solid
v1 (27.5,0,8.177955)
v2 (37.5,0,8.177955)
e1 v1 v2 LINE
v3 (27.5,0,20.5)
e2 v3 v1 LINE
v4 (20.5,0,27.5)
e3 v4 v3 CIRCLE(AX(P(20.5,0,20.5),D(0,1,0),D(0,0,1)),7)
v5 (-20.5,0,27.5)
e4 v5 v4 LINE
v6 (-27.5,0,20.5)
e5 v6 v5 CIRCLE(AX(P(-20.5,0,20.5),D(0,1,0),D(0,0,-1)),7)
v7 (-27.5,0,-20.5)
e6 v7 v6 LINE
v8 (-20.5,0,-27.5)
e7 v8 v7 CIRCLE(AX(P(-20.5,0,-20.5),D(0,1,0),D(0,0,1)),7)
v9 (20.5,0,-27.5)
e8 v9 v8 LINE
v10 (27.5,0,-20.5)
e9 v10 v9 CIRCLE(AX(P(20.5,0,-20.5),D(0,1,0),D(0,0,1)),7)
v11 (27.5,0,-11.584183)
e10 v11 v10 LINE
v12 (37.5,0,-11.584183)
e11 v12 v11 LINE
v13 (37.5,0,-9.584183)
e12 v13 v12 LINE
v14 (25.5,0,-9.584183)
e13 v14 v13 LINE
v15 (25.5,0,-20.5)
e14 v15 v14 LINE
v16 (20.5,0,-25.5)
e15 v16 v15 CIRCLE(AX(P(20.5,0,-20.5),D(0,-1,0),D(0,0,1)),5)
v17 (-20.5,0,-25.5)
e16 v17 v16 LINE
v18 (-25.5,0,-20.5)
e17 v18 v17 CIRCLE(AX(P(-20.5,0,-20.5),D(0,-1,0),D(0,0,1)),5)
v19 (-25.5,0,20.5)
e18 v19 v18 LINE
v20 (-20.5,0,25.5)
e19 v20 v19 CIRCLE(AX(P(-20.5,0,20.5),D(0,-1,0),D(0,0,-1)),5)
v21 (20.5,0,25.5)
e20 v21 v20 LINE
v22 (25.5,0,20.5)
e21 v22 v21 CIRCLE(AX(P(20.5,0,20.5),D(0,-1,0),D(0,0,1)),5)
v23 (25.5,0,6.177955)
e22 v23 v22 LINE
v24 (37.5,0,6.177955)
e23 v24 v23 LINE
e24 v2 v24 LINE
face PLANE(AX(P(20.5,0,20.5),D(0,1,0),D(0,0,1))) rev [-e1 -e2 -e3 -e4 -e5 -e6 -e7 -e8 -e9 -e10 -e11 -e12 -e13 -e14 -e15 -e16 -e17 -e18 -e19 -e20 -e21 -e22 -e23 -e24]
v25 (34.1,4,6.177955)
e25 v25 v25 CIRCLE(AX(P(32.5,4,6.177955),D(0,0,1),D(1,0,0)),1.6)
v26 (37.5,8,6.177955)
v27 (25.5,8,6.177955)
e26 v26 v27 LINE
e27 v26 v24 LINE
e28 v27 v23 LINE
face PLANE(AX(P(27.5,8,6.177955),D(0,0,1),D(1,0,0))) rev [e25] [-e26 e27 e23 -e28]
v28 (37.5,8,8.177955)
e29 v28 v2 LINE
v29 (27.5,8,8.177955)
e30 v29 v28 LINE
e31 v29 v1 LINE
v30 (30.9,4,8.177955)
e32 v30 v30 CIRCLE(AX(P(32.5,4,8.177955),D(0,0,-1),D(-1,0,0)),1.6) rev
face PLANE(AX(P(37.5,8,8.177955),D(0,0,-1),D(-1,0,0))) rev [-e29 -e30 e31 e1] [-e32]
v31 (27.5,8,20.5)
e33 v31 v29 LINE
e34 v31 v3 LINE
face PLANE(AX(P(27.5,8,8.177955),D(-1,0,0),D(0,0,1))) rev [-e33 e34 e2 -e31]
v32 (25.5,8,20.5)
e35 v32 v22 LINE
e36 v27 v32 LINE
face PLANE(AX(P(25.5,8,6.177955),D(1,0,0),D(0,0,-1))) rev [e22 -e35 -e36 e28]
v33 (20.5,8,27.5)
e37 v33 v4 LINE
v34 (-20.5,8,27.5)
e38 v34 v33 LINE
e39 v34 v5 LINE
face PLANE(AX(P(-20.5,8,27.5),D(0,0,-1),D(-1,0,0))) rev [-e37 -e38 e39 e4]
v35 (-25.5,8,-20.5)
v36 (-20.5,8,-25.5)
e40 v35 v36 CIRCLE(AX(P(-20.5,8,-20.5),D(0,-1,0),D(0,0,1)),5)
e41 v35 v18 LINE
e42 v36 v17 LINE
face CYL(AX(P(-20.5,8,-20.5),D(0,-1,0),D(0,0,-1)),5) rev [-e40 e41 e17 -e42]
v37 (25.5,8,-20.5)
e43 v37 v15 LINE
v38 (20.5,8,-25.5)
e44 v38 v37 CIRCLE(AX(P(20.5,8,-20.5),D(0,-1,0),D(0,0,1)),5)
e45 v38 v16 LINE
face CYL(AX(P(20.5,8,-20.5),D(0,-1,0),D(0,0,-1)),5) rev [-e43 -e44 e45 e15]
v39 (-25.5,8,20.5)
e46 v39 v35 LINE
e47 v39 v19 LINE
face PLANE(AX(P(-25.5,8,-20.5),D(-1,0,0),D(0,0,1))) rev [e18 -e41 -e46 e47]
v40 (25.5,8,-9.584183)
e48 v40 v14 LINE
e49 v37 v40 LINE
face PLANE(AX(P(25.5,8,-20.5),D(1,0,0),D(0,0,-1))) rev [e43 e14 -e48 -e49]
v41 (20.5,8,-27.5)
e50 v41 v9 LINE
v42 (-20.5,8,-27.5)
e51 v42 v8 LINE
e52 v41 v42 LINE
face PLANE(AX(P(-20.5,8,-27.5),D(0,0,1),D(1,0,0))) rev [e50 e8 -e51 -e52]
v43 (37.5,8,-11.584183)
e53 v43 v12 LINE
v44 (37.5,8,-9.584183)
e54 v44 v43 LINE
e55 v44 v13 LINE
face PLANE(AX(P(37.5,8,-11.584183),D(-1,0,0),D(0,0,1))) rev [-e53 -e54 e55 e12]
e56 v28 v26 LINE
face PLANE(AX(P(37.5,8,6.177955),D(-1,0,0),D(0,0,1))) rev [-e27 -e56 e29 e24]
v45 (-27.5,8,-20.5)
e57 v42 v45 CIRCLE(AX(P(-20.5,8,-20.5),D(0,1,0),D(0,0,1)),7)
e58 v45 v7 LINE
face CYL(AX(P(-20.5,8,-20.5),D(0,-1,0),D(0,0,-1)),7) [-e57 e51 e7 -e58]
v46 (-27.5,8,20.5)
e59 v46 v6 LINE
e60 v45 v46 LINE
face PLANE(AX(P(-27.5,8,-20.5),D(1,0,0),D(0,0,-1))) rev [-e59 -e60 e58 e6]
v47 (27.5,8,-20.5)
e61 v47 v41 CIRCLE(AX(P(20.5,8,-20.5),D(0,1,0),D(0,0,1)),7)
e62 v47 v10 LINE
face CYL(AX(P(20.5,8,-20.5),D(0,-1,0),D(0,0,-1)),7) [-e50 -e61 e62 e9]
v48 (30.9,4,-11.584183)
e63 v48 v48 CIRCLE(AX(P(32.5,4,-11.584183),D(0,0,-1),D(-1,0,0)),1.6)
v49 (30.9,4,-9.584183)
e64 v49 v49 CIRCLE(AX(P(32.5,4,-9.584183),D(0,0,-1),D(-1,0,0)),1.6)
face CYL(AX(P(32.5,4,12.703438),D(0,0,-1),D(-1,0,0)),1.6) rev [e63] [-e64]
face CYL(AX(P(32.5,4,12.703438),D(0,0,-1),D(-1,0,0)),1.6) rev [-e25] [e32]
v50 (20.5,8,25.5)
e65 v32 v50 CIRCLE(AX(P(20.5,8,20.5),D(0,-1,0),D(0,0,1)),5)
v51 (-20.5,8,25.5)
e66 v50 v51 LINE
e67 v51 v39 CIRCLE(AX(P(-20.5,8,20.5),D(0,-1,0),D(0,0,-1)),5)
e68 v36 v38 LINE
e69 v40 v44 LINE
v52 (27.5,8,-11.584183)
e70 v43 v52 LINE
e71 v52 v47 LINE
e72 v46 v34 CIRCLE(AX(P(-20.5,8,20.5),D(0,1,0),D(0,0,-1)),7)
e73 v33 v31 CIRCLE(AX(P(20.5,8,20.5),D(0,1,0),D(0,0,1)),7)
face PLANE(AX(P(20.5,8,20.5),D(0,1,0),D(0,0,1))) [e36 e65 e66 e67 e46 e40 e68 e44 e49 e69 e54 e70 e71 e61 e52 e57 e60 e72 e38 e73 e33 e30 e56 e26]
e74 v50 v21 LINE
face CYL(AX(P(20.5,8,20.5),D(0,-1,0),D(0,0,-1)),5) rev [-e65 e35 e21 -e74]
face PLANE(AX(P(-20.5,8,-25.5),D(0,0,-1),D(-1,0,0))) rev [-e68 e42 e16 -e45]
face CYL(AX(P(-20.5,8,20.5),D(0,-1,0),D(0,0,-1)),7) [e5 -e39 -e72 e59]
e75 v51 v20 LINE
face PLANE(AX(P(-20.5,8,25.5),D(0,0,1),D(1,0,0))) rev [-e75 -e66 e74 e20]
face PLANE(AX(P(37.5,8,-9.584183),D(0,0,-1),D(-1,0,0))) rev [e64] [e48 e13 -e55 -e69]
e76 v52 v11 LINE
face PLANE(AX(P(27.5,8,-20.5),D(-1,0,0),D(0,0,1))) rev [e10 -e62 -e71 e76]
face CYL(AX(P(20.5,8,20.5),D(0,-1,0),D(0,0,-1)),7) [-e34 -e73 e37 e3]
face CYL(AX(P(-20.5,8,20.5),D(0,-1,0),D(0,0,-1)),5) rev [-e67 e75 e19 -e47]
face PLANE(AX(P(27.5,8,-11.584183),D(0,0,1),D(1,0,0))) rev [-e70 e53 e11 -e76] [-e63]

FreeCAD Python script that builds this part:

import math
import FreeCAD as App
import Part
import Sketcher

V = App.Vector

doc = App.newDocument("Part")
body = doc.addObject("PartDesign::Body", "Body")

# Sketch on XZ plane
sketch1 = body.newObject("Sketcher::SketchObject", "Sketch")
sketch1.AttachmentSupport = (doc.getObject("XZ_Plane"), [""])
sketch1.MapMode = "FlatFace"
sketch1.addGeometry([
    Part.LineSegment(V(20.5, -27.5, 0), V(-20.5, -27.5, 0)),  # 0
    Part.ArcOfCircle(Part.Circle(V(-20.5, -20.5, 0), V(0, 0, 1), 7), math.radians(-180), math.radians(-90)),  # 1
    Part.LineSegment(V(-27.5, -20.5, 0), V(-27.5, 20.5, 0)),  # 2
    Part.ArcOfCircle(Part.Circle(V(-20.5, 20.5, 0), V(0, 0, 1), 7), math.radians(90), math.radians(180)),  # 3
    Part.LineSegment(V(-20.5, 27.5, 0), V(20.5, 27.5, 0)),  # 4
    Part.ArcOfCircle(Part.Circle(V(20.5, 20.5, 0), V(0, 0, 1), 7), math.radians(0), math.radians(90)),  # 5
    Part.LineSegment(V(27.5, 20.5, 0), V(27.5, 8.2, 0)),  # 6
    Part.LineSegment(V(27.5, 8.2, 0), V(37.5, 8.2, 0)),  # 7
    Part.LineSegment(V(37.5, 8.2, 0), V(37.5, 6.2, 0)),  # 8
    Part.LineSegment(V(37.5, 6.2, 0), V(25.5, 6.2, 0)),  # 9
    Part.LineSegment(V(25.5, 6.2, 0), V(25.5, 20.5, 0)),  # 10
    Part.ArcOfCircle(Part.Circle(V(20.5, 20.5, 0), V(0, 0, 1), 5), math.radians(0), math.radians(90)),  # 11
    Part.LineSegment(V(20.5, 25.5, 0), V(-20.5, 25.5, 0)),  # 12
    Part.ArcOfCircle(Part.Circle(V(-20.5, 20.5, 0), V(0, 0, 1), 5), math.radians(90), math.radians(180)),  # 13
    Part.LineSegment(V(-25.5, 20.5, 0), V(-25.5, -20.5, 0)),  # 14
    Part.ArcOfCircle(Part.Circle(V(-20.5, -20.5, 0), V(0, 0, 1), 5), math.radians(180), math.radians(270)),  # 15
    Part.LineSegment(V(-20.5, -25.5, 0), V(20.5, -25.5, 0)),  # 16
    Part.ArcOfCircle(Part.Circle(V(20.5, -20.5, 0), V(0, 0, 1), 5), math.radians(-90), math.radians(0)),  # 17
    Part.LineSegment(V(25.5, -20.5, 0), V(25.5, -9.6, 0)),  # 18
    Part.LineSegment(V(25.5, -9.6, 0), V(37.5, -9.6, 0)),  # 19
    Part.LineSegment(V(37.5, -9.6, 0), V(37.5, -11.6, 0)),  # 20
    Part.LineSegment(V(37.5, -11.6, 0), V(27.5, -11.6, 0)),  # 21
    Part.LineSegment(V(27.5, -11.6, 0), V(27.5, -20.5, 0)),  # 22
    Part.ArcOfCircle(Part.Circle(V(20.5, -20.5, 0), V(0, 0, 1), 7), math.radians(-90), math.radians(0)),  # 23
], False)
sketch1.addConstraint([
    Sketcher.Constraint("Tangent", 0, 2, 1, 2),
    Sketcher.Constraint("Tangent", 1, 1, 2, 1),
    Sketcher.Constraint("Tangent", 2, 2, 3, 2),
    Sketcher.Constraint("Tangent", 3, 1, 4, 1),
    Sketcher.Constraint("Tangent", 4, 2, 5, 2),
    Sketcher.Constraint("Tangent", 5, 1, 6, 1),
    Sketcher.Constraint("Coincident", 6, 2, 7, 1),
    Sketcher.Constraint("Coincident", 7, 2, 8, 1),
    Sketcher.Constraint("Coincident", 8, 2, 9, 1),
    Sketcher.Constraint("Coincident", 9, 2, 10, 1),
    Sketcher.Constraint("Tangent", 10, 2, 11, 1),
    Sketcher.Constraint("Tangent", 11, 2, 12, 1),
    Sketcher.Constraint("Tangent", 12, 2, 13, 1),
    Sketcher.Constraint("Tangent", 13, 2, 14, 1),
    Sketcher.Constraint("Tangent", 14, 2, 15, 1),
    Sketcher.Constraint("Tangent", 15, 2, 16, 1),
    Sketcher.Constraint("Tangent", 16, 2, 17, 1),
    Sketcher.Constraint("Tangent", 17, 2, 18, 1),
    Sketcher.Constraint("Coincident", 18, 2, 19, 1),
    Sketcher.Constraint("Coincident", 19, 2, 20, 1),
    Sketcher.Constraint("Coincident", 20, 2, 21, 1),
    Sketcher.Constraint("Coincident", 21, 2, 22, 1),
    Sketcher.Constraint("Tangent", 22, 2, 23, 2),
    Sketcher.Constraint("Tangent", 23, 1, 0, 1),
    Sketcher.Constraint("Horizontal", 0),
    Sketcher.Constraint("Vertical", 2),
    Sketcher.Constraint("Horizontal", 4),
    Sketcher.Constraint("Vertical", 6),
    Sketcher.Constraint("Horizontal", 7),
    Sketcher.Constraint("Vertical", 8),
    Sketcher.Constraint("Horizontal", 9),
    Sketcher.Constraint("Vertical", 10),
    Sketcher.Constraint("Horizontal", 12),
    Sketcher.Constraint("Vertical", 14),
    Sketcher.Constraint("Horizontal", 16),
    Sketcher.Constraint("Vertical", 18),
    Sketcher.Constraint("Horizontal", 19),
    Sketcher.Constraint("Vertical", 20),
    Sketcher.Constraint("Horizontal", 21),
    Sketcher.Constraint("Vertical", 22),
    Sketcher.Constraint("Coincident", 11, 3, 5, 3),
    Sketcher.Constraint("Coincident", 13, 3, 3, 3),
    Sketcher.Constraint("Coincident", 15, 3, 1, 3),
    Sketcher.Constraint("Coincident", 23, 3, 17, 3),
    Sketcher.Constraint("Equal", 1, 3),
    Sketcher.Constraint("Equal", 3, 5),
    Sketcher.Constraint("Equal", 15, 17),
    Sketcher.Constraint("Symmetric", 1, 3, 5, 3, -1, 1),
    Sketcher.Constraint("Vertical", 11, 3, 17, 3),
    Sketcher.Constraint("Vertical", 8, 2, 19, 2),
    Sketcher.Constraint("Equal", 16, 2),
    Sketcher.Constraint("Equal", 8, 20),
    Sketcher.Constraint("Radius", 1, 7.0),
    Sketcher.Constraint("Radius", 11, 5.0),
    Sketcher.Constraint("DistanceX", 0, 2, 0, 1, 41.0),
    Sketcher.Constraint("DistanceX", 7, 1, 7, 2, 10.0),
    Sketcher.Constraint("DistanceY", 8, 2, 8, 1, 2.0),
    Sketcher.Constraint("DistanceY", 6, 2, 6, 1, 12.322045),
    Sketcher.Constraint("DistanceY", 18, 1, 18, 2, 10.915817),
])
pad1 = body.newObject("PartDesign::Pad", "Pad")
pad1.Profile = sketch1
pad1.Length = 8
pad1.Reversed = True

# Sketch on XY plane
sketch2 = body.newObject("Sketcher::SketchObject", "Sketch001")
sketch2.AttachmentSupport = (doc.getObject("XY_Plane"), [""])
sketch2.MapMode = "FlatFace"
sketch2.AttachmentOffset = App.Placement(V(0, 0, -11.584183), App.Rotation())
sketch2.addGeometry(Part.Circle(V(32.5, 4, 0), V(0, 0, 1), 1.6), False)
sketch2.addConstraint([
    Sketcher.Constraint("Diameter", 0, 3.2),
    Sketcher.Constraint("DistanceY", -1, 1, 0, 3, 4.0),
    Sketcher.Constraint("DistanceX", -1, 1, 0, 3, 32.5),
])
pocket1 = body.newObject("PartDesign::Pocket", "Pocket")
pocket1.Profile = sketch2
pocket1.Length = 37.084183
pocket1.Reversed = True

doc.recompute()
